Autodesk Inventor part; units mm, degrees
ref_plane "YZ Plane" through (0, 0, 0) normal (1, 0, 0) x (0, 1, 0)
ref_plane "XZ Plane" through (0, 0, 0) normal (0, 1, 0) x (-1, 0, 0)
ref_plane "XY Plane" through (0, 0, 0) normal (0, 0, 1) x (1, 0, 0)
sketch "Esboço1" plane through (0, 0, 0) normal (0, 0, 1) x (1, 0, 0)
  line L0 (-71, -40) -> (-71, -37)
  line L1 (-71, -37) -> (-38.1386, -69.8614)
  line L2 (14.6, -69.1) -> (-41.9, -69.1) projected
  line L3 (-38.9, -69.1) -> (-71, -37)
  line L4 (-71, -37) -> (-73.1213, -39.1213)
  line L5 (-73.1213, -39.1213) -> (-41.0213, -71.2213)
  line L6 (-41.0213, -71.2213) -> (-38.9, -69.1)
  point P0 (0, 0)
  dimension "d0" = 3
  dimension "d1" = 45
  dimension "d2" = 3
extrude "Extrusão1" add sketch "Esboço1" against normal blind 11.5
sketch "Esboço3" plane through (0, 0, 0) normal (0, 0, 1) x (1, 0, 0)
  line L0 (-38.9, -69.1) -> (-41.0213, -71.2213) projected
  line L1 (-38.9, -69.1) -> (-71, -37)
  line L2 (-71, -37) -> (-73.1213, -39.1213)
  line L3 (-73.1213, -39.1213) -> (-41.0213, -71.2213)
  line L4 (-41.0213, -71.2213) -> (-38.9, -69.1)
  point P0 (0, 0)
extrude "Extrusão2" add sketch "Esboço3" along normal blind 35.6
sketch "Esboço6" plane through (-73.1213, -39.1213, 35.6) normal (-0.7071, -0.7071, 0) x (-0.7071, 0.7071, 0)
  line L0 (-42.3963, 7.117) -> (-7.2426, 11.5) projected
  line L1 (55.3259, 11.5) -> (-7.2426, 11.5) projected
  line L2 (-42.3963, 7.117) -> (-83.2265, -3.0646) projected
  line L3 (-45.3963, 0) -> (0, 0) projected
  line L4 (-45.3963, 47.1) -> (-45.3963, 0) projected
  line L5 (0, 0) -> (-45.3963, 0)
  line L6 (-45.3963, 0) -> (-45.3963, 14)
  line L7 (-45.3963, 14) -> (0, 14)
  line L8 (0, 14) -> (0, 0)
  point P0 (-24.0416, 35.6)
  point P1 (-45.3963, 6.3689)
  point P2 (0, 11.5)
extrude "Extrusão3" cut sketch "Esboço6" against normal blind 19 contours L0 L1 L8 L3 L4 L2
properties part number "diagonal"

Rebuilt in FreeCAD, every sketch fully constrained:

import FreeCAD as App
import Part
import Sketcher

V = App.Vector
Q = App.Units.Quantity

doc = App.newDocument("Part")
body = doc.addObject("PartDesign::Body", "Body")

# Sketch on XY plane
sketch1 = body.newObject("Sketcher::SketchObject", "Sketch")
sketch1.AttachmentSupport = (doc.getObject("XY_Plane"), [""])
sketch1.MapMode = "FlatFace"
sketch1.addGeometry(Part.LineSegment(V(-38.9, -69.1, 0), V(-71, -37, 0)), False)
sketch1.addGeometry(Part.LineSegment(V(-71, -37, 0), V(-73.1, -39.1, 0)), False)
sketch1.addGeometry(Part.LineSegment(V(-73.1, -39.1, 0), V(-41, -71.2, 0)), False)
sketch1.addGeometry(Part.LineSegment(V(-41, -71.2, 0), V(-38.9, -69.1, 0)), False)
sketch1.addConstraint(Sketcher.Constraint("Coincident", 0, 2, 1, 1))
sketch1.addConstraint(Sketcher.Constraint("Coincident", 1, 2, 2, 1))
sketch1.addConstraint(Sketcher.Constraint("Coincident", 2, 2, 3, 1))
sketch1.addConstraint(Sketcher.Constraint("Coincident", 3, 2, 0, 1))
sketch1.addConstraint(Sketcher.Constraint("Perpendicular", 0, 1))
sketch1.addConstraint(Sketcher.Constraint("Perpendicular", 1, 2))
sketch1.addConstraint(Sketcher.Constraint("Perpendicular", 2, 3))
sketch1.addConstraint(Sketcher.Constraint("Angle", 2, Q("-45 deg")))
sketch1.addConstraint(Sketcher.Constraint("Distance", 1, Q("3 mm")))
sketch1.addConstraint(Sketcher.Constraint("DistanceX", 0, 2, -1, 1, Q("71 mm")))
sketch1.addConstraint(Sketcher.Constraint("DistanceY", 0, 2, -1, 1, Q("37 mm")))
sketch1.addConstraint(Sketcher.Constraint("DistanceX", 3, 2, -1, 1, Q("38.9 mm")))
pad1 = body.newObject("PartDesign::Pad", "Pad")
pad1.Profile = sketch1
pad1.Length = 11.5
pad1.Reversed = True

# Sketch on XY plane
sketch2 = body.newObject("Sketcher::SketchObject", "Sketch001")
sketch2.AttachmentSupport = (doc.getObject("XY_Plane"), [""])
sketch2.MapMode = "FlatFace"
sketch2.addGeometry(Part.LineSegment(V(-41, -71.2, 0), V(-38.9, -69.1, 0)), False)
sketch2.addGeometry(Part.LineSegment(V(-38.9, -69.1, 0), V(-71, -37, 0)), False)
sketch2.addGeometry(Part.LineSegment(V(-71, -37, 0), V(-73.1, -39.1, 0)), False)
sketch2.addGeometry(Part.LineSegment(V(-73.1, -39.1, 0), V(-41, -71.2, 0)), False)
sketch2.addConstraint(Sketcher.Constraint("Coincident", 0, 2, 1, 1))
sketch2.addConstraint(Sketcher.Constraint("Coincident", 1, 2, 2, 1))
sketch2.addConstraint(Sketcher.Constraint("Coincident", 2, 2, 3, 1))
sketch2.addConstraint(Sketcher.Constraint("Coincident", 3, 2, 0, 1))
sketch2.addConstraint(Sketcher.Constraint("Perpendicular", 0, 1))
sketch2.addConstraint(Sketcher.Constraint("Perpendicular", 1, 2))
sketch2.addConstraint(Sketcher.Constraint("Perpendicular", 2, 3))
sketch2.addConstraint(Sketcher.Constraint("Angle", 0, Q("45 deg")))
sketch2.addConstraint(Sketcher.Constraint("Distance", 0, Q("3 mm")))
sketch2.addConstraint(Sketcher.Constraint("DistanceX", 1, 2, -1, 1, Q("71 mm")))
sketch2.addConstraint(Sketcher.Constraint("DistanceY", 1, 2, -1, 1, Q("37 mm")))
sketch2.addConstraint(Sketcher.Constraint("DistanceX", 0, 2, -1, 1, Q("38.9 mm")))
pad2 = body.newObject("PartDesign::Pad", "Pad001")
pad2.Profile = sketch2
pad2.Length = 35.6

# Sketch on an angled plane
sketch3 = body.newObject("Sketcher::SketchObject", "Sketch002")
sketch3.Placement = App.Placement(V(-73.1213, -39.1213, 35.6), App.Rotation(V(-0.707106781, 0.707106781, 0), V(0, 0, -0.999999999), V(-0.707106781, -0.707106781, 0), "ZXY"))
sketch3.addGeometry(Part.LineSegment(V(-7.2, 11.5, 0), V(-42.4, 7.1, 0)), False)
sketch3.addGeometry(Part.LineSegment(V(-42.4, 7.1, 0), V(-45.4, 6.4, 0)), False)
sketch3.addGeometry(Part.LineSegment(V(-45.4, 6.4, 0), V(-45.4, 0, 0)), False)
sketch3.addGeometry(Part.LineSegment(V(-45.4, 0, 0), V(0, 0, 0)), False)
sketch3.addGeometry(Part.LineSegment(V(0, 0, 0), V(0, 11.5, 0)), False)
sketch3.addGeometry(Part.LineSegment(V(0, 11.5, 0), V(-7.2, 11.5, 0)), False)
sketch3.addConstraint(Sketcher.Constraint("Coincident", 0, 2, 1, 1))
sketch3.addConstraint(Sketcher.Constraint("Coincident", 1, 2, 2, 1))
sketch3.addConstraint(Sketcher.Constraint("Coincident", 2, 2, 3, 1))
sketch3.addConstraint(Sketcher.Constraint("Coincident", 3, 2, 4, 1))
sketch3.addConstraint(Sketcher.Constraint("Coincident", 4, 2, 5, 1))
sketch3.addConstraint(Sketcher.Constraint("Coincident", 5, 2, 0, 1))
sketch3.addConstraint(Sketcher.Constraint("Vertical", 2))
sketch3.addConstraint(Sketcher.Constraint("Horizontal", 3))
sketch3.addConstraint(Sketcher.Constraint("Vertical", 4))
sketch3.addConstraint(Sketcher.Constraint("Horizontal", 5))
sketch3.addConstraint(Sketcher.Constraint("Coincident", 3, 2, -1, 1))
sketch3.addConstraint(Sketcher.Constraint("DistanceY", 4, 1, 4, 2, Q("11.5 mm")))
sketch3.addConstraint(Sketcher.Constraint("DistanceX", 1, 2, 0, 2, Q("3 mm")))
sketch3.addConstraint(Sketcher.Constraint("DistanceY", 2, 2, 2, 1, Q("6.369 mm")))
sketch3.addConstraint(Sketcher.Constraint("Distance", 0, Q("35.426 mm")))
sketch3.addConstraint(Sketcher.Constraint("DistanceX", 3, 1, 3, 2, Q("45.3963 mm")))
sketch3.addConstraint(Sketcher.Constraint("DistanceX", 5, 2, 5, 1, Q("7.2426 mm")))
pocket1 = body.newObject("PartDesign::Pocket", "Pocket")
pocket1.Profile = sketch3
pocket1.Length = 19

doc.recompute()
